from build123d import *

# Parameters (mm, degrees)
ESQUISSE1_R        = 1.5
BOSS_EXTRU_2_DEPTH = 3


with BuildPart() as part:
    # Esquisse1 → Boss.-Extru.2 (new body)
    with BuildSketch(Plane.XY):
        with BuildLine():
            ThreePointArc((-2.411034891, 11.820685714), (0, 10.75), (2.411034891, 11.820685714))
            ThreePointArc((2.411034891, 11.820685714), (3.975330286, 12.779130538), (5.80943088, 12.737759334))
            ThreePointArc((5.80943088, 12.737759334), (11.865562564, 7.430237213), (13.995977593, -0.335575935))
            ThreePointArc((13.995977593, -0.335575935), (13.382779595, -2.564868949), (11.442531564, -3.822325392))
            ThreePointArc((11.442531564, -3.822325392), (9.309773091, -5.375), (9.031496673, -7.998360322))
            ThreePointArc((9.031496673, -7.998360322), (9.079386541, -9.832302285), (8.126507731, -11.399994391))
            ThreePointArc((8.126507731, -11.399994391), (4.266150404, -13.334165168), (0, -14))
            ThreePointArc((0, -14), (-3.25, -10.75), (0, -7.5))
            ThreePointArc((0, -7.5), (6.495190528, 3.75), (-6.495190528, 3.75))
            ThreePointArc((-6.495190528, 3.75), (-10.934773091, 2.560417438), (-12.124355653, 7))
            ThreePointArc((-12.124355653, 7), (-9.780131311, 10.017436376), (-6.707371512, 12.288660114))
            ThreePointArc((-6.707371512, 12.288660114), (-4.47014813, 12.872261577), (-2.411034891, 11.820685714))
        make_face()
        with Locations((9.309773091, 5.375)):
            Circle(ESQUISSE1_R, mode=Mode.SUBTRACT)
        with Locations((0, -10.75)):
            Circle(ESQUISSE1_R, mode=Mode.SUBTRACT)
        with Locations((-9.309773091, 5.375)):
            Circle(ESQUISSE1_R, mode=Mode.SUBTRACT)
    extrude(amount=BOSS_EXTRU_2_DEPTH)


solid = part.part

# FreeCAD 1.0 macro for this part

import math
import FreeCAD as App
import Part
import Sketcher

V = App.Vector

doc = App.newDocument("Part")
params = doc.addObject("Spreadsheet::Sheet", "Params")
for row, (alias, value) in enumerate([
    ("sketch1_diameter", "3 mm"),
    ("sketch1_radius", "14 mm"),
    ("sketch1_radius2", "7.5 mm"),
    ("pad1_length", "3 mm"),
], start=1):
    params.set(f"A{row}", alias)
    params.set(f"B{row}", "=" + value)
    params.setAlias(f"B{row}", alias)

body = doc.addObject("PartDesign::Body", "Body")

sketch1 = body.newObject("Sketcher::SketchObject", "Sketch")
sketch1.AttachmentSupport = (doc.getObject("XY_Plane"), [""])
sketch1.MapMode = "FlatFace"
sketch1.addGeometry(Part.ArcOfCircle(Part.Circle(V(0, 14, 0), V(0, 0, 1), 3.25), math.radians(-137.889835), math.radians(-42.110165)), False)
sketch1.addGeometry(Part.ArcOfCircle(Part.Circle(V(-4.82207, 9.641371, 0), V(0, 0, 1), 3.25), math.radians(42.110165), math.radians(125.457073)), False)
sketch1.addGeometry(Part.ArcOfCircle(Part.Circle(V(0, 0, 0), V(0, 0, 1), 14), math.radians(118.626505), math.radians(150)), False)
sketch1.addGeometry(Part.ArcOfCircle(Part.Circle(V(-9.309773, 5.375, 0), V(0, 0, 1), 3.25), math.radians(150), math.radians(330)), False)
sketch1.addGeometry(Part.ArcOfCircle(Part.Circle(V(0, 0, 0), V(0, 0, 1), 7.5), math.radians(-90), math.radians(150)), False)
sketch1.addGeometry(Part.ArcOfCircle(Part.Circle(V(0, -10.75, 0), V(0, 0, 1), 3.25), math.radians(90), math.radians(270)), False)
sketch1.addGeometry(Part.ArcOfCircle(Part.Circle(V(0, 0, 0), V(0, 0, 1), 14), math.radians(-90), math.radians(-54.516757)), False)
sketch1.addGeometry(Part.ArcOfCircle(Part.Circle(V(5.938638, -8.996721, 0), V(0, 0, 1), 3.25), math.radians(-47.686189), math.radians(17.889835)), False)
sketch1.addGeometry(Part.ArcOfCircle(Part.Circle(V(12.124356, -7, 0), V(0, 0, 1), 3.25), math.radians(102.110165), math.radians(197.889835)), False)
sketch1.addGeometry(Part.ArcOfCircle(Part.Circle(V(10.760707, -0.644651, 0), V(0, 0, 1), 3.25), math.radians(-77.889835), math.radians(5.457073)), False)
sketch1.addGeometry(Part.ArcOfCircle(Part.Circle(V(0, 0, 0), V(0, 0, 1), 14), math.radians(-1.373495), math.radians(65.483244)), False)
sketch1.addGeometry(Part.ArcOfCircle(Part.Circle(V(4.82207, 9.641371, 0), V(0, 0, 1), 3.25), math.radians(72.313811), math.radians(137.889835)), False)
sketch1.addGeometry(Part.Circle(V(0, -10.75, 0), V(0, 0, 1), 1.5), False)
sketch1.addGeometry(Part.Circle(V(9.309773, 5.375, 0), V(0, 0, 1), 1.5), False)
sketch1.addGeometry(Part.Circle(V(-9.309773, 5.375, 0), V(0, 0, 1), 1.5), False)
sketch1.addConstraint(Sketcher.Constraint("Tangent", 0, 1, 1, 1))
sketch1.addConstraint(Sketcher.Constraint("Coincident", 1, 2, 2, 1))
sketch1.addConstraint(Sketcher.Constraint("Tangent", 2, 2, 3, 1))
sketch1.addConstraint(Sketcher.Constraint("Tangent", 3, 2, 4, 2))
sketch1.addConstraint(Sketcher.Constraint("Tangent", 4, 1, 5, 1))
sketch1.addConstraint(Sketcher.Constraint("Tangent", 5, 2, 6, 1))
sketch1.addConstraint(Sketcher.Constraint("Coincident", 6, 2, 7, 1))
sketch1.addConstraint(Sketcher.Constraint("Tangent", 7, 2, 8, 2))
sketch1.addConstraint(Sketcher.Constraint("Tangent", 8, 1, 9, 1))
sketch1.addConstraint(Sketcher.Constraint("Coincident", 9, 2, 10, 1))
sketch1.addConstraint(Sketcher.Constraint("Coincident", 10, 2, 11, 1))
sketch1.addConstraint(Sketcher.Constraint("Tangent", 11, 2, 0, 2))
sketch1.addConstraint(Sketcher.Constraint("Coincident", 2, 3, -1, 1))
sketch1.addConstraint(Sketcher.Constraint("Coincident", 4, 3, -1, 1))
sketch1.addConstraint(Sketcher.Constraint("Coincident", 6, 3, -1, 1))
sketch1.addConstraint(Sketcher.Constraint("Coincident", 10, 3, -1, 1))
sketch1.addConstraint(Sketcher.Constraint("Coincident", 12, 3, 5, 3))
sketch1.addConstraint(Sketcher.Constraint("Coincident", 14, 3, 3, 3))
sketch1.addConstraint(Sketcher.Constraint("Equal", 0, 1))
sketch1.addConstraint(Sketcher.Constraint("Equal", 1, 3))
sketch1.addConstraint(Sketcher.Constraint("Equal", 3, 5))
sketch1.addConstraint(Sketcher.Constraint("Equal", 5, 7))
sketch1.addConstraint(Sketcher.Constraint("Equal", 7, 8))
sketch1.addConstraint(Sketcher.Constraint("Equal", 8, 9))
sketch1.addConstraint(Sketcher.Constraint("Equal", 6, 10))
sketch1.addConstraint(Sketcher.Constraint("Equal", 9, 11))
sketch1.addConstraint(Sketcher.Constraint("Equal", 12, 13))
sketch1.addConstraint(Sketcher.Constraint("Equal", 13, 14))
sketch1.addConstraint(Sketcher.Constraint("Symmetric", 1, 3, 11, 3, -2))
sketch1.addConstraint(Sketcher.Constraint("Symmetric", 3, 3, 13, 3, -2))
sketch1.addConstraint(Sketcher.Constraint("PointOnObject", 5, 3, -2))
sketch1.addConstraint(Sketcher.Constraint("Diameter", 12, 3.0))
sketch1.addConstraint(Sketcher.Constraint("Radius", 2, 14.0))
sketch1.addConstraint(Sketcher.Constraint("Radius", 4, 7.5))
sketch1.addConstraint(Sketcher.Constraint("DistanceY", -1, 1, 0, 3, 14.0))
sketch1.addConstraint(Sketcher.Constraint("DistanceY", 8, 3, -1, 1, 7.0))
sketch1.addConstraint(Sketcher.Constraint("DistanceY", -1, 1, 2, 2, 7.0))
sketch1.addConstraint(Sketcher.Constraint("DistanceX", 1, 2, 1, 3, 1.885302))
sketch1.addConstraint(Sketcher.Constraint("DistanceY", 7, 3, -1, 1, 8.996721))
sketch1.addConstraint(Sketcher.Constraint("DistanceY", 9, 3, -1, 1, 0.644651))
sketch1.addConstraint(Sketcher.Constraint("DistanceX", -1, 1, 8, 1, 11.442532))
sketch1.setExpression("Constraints[31]", "Params.sketch1_diameter")
sketch1.setExpression("Constraints[32]", "Params.sketch1_radius")
sketch1.setExpression("Constraints[33]", "Params.sketch1_radius2")
pad1 = body.newObject("PartDesign::Pad", "Pad")
pad1.Profile = sketch1
pad1.setExpression("Length", "Params.pad1_length")

doc.recompute()
